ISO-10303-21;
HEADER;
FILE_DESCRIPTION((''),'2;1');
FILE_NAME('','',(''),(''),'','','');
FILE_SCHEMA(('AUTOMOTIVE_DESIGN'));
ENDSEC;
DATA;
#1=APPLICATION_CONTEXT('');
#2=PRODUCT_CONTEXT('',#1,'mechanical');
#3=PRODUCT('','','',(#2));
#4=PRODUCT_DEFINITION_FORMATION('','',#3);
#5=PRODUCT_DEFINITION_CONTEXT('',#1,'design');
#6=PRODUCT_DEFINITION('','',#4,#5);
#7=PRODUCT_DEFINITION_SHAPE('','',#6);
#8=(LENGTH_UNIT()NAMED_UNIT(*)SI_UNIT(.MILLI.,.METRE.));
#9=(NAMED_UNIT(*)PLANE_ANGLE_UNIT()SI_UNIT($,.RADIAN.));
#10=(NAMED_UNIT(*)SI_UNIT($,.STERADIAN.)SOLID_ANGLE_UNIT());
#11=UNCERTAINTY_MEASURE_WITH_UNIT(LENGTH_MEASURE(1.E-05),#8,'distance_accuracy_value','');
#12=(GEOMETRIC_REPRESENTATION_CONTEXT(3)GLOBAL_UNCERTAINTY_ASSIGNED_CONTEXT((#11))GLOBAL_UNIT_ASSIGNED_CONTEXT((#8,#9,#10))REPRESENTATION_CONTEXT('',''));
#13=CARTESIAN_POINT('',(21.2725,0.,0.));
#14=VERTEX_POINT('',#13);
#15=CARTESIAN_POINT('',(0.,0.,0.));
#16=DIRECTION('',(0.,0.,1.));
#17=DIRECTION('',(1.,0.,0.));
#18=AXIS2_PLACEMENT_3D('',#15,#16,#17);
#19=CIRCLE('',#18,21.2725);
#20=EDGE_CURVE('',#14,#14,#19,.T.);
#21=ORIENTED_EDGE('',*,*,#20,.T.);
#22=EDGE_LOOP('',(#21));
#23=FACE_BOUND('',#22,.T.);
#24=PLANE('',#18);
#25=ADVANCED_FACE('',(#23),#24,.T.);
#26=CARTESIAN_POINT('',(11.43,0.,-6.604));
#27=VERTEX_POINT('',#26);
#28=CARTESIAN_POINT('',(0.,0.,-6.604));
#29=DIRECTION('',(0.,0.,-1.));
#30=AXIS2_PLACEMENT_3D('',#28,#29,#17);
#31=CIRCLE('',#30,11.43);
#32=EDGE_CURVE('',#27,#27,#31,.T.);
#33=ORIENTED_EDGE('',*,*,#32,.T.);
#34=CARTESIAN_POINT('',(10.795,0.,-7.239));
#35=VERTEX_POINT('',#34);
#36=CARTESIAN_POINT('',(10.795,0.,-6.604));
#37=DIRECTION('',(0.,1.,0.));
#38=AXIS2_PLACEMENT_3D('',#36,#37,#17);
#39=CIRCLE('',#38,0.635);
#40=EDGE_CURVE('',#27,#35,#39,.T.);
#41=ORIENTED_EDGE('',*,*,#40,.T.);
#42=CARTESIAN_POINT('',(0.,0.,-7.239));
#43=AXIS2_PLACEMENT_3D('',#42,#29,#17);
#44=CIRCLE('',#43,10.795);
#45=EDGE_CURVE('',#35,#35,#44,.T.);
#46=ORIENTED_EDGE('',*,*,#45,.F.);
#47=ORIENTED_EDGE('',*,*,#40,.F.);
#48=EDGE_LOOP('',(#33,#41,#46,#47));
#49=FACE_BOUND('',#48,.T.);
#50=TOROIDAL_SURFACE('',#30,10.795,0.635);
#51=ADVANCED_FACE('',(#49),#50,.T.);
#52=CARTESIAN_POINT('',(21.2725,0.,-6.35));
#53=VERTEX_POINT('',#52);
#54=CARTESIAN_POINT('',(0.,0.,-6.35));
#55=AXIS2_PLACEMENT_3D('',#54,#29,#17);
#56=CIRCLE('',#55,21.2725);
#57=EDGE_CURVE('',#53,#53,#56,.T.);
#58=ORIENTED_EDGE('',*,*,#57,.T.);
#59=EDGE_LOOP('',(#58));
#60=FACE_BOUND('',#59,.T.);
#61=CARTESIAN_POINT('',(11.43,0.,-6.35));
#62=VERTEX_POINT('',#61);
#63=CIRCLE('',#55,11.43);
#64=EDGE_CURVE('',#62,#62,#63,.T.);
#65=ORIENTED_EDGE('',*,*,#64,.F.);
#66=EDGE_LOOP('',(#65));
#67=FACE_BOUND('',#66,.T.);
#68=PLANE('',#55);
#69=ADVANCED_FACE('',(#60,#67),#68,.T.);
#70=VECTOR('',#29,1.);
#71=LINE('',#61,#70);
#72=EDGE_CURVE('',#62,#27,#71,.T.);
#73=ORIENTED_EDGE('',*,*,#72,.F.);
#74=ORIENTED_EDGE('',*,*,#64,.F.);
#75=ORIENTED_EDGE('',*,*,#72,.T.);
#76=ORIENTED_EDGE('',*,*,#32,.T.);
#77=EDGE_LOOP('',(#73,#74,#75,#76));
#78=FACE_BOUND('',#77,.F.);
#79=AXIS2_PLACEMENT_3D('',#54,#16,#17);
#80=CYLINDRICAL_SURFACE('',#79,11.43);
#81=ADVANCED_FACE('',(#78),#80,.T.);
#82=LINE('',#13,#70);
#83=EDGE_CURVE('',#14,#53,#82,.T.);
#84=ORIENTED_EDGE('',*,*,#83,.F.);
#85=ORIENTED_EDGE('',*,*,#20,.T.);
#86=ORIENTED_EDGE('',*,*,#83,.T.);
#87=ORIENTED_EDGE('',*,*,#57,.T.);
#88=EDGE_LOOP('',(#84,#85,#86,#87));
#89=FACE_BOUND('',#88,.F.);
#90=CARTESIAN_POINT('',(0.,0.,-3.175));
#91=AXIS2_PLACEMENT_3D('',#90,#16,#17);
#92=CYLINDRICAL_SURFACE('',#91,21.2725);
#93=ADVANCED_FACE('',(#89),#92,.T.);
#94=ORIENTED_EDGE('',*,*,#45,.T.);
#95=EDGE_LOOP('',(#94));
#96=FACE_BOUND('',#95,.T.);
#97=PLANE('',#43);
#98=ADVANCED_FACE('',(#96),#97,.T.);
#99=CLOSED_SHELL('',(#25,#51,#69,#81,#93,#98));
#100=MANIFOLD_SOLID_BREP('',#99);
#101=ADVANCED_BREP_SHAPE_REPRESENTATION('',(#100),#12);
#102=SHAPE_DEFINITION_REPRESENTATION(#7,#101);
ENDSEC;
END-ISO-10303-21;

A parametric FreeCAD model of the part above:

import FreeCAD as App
import Part
import Sketcher
from FreeCAD import Vector
Q = App.Units.Quantity


def edges_at(feature, points):
    """Names of the edges that pass closest to the given points."""
    edges = feature.Shape.Edges
    near = lambda p: min(range(len(edges)), key=lambda i: edges[i].distToShape(Part.Vertex(*p))[0])
    return sorted({f"Edge{near(p) + 1}" for p in points})

doc = App.newDocument("Part")
body = doc.addObject("PartDesign::Body", "Body")

# Sketch on XY plane
sketch1 = body.newObject("Sketcher::SketchObject", "Sketch")
sketch1.AttachmentSupport = (doc.getObject("XY_Plane"), [""])
sketch1.MapMode = "FlatFace"
sketch1.addGeometry(Part.Circle(Vector(0, 0, 0), Vector(0, 0, 1), 21), False)
sketch1.addConstraint([
    Sketcher.Constraint("Coincident", 0, 3, -1, 1),
    Sketcher.Constraint("Diameter", 0, Q("1.675 in")),
])
pad1 = body.newObject("PartDesign::Pad", "Pad")
pad1.Profile = sketch1
pad1.Length = Q("0.125 in")
pad1.Reversed = True

# Sketch on XY plane
sketch2 = body.newObject("Sketcher::SketchObject", "Sketch001")
sketch2.AttachmentSupport = (doc.getObject("XY_Plane"), [""])
sketch2.MapMode = "FlatFace"
sketch2.AttachmentOffset = App.Placement(Vector(0, 0, -0.125 * 25.4), App.Rotation())
sketch2.addGeometry(Part.Circle(Vector(0, 0, 0), Vector(0, 0, 1), 21), False)
sketch2.addConstraint([
    Sketcher.Constraint("Coincident", 0, 3, -1, 1),
    Sketcher.Constraint("Diameter", 0, Q("1.675 in")),
])
pad2 = body.newObject("PartDesign::Pad", "Pad001")
pad2.Profile = sketch2
pad2.Length = Q("0.125 in")
pad2.Reversed = True

# Sketch on XY plane
sketch3 = body.newObject("Sketcher::SketchObject", "Sketch002")
sketch3.AttachmentSupport = (doc.getObject("XY_Plane"), [""])
sketch3.MapMode = "FlatFace"
sketch3.AttachmentOffset = App.Placement(Vector(0, 0, -0.25 * 25.4), App.Rotation())
sketch3.addGeometry(Part.Circle(Vector(0, 0, 0), Vector(0, 0, 1), 11), False)
sketch3.addConstraint([
    Sketcher.Constraint("Coincident", 0, 3, -1, 1),
    Sketcher.Constraint("Diameter", 0, Q("0.9 in")),
])
pad3 = body.newObject("PartDesign::Pad", "Pad002")
pad3.Profile = sketch3
pad3.Length = Q("0.035 in")
pad3.Reversed = True
doc.recompute()

fillet = body.newObject("PartDesign::Fillet", "Fillet")
fillet.Base = (pad3, edges_at(pad3, [(-11.43, 0, -7.239)]))
fillet.Radius = Q("0.025 in")

doc.recompute()
